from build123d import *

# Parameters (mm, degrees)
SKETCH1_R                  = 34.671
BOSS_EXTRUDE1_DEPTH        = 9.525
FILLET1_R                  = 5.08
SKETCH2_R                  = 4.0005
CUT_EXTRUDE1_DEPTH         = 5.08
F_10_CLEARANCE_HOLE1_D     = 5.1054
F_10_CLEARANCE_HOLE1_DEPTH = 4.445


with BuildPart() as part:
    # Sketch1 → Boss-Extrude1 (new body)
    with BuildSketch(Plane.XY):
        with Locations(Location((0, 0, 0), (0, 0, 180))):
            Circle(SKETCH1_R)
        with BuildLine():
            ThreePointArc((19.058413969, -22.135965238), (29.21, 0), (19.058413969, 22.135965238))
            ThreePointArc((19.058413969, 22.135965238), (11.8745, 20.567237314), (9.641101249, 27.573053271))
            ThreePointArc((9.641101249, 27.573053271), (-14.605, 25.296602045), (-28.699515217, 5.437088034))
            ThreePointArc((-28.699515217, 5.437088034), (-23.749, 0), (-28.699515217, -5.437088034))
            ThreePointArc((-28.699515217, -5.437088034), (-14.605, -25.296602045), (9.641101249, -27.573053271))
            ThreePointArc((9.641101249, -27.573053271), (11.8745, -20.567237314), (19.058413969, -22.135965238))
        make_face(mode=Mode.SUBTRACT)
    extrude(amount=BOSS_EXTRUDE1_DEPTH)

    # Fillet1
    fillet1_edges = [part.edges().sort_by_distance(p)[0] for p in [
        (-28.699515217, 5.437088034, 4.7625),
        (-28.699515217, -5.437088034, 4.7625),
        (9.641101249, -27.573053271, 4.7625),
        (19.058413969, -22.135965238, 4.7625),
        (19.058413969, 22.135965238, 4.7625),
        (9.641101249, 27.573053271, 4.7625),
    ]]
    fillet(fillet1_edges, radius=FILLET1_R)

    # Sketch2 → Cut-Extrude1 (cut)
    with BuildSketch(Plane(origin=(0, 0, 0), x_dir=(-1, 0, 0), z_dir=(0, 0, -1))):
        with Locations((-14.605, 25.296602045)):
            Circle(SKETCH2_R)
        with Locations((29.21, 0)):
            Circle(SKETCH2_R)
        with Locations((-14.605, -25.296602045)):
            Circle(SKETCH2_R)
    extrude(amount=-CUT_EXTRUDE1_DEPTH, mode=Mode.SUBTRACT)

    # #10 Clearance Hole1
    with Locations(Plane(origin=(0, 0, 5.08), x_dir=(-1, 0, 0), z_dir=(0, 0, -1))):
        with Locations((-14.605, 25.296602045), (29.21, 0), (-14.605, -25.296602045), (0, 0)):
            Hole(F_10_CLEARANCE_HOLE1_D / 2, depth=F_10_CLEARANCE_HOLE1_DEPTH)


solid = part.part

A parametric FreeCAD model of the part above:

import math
import FreeCAD as App
import Part
import Sketcher
from FreeCAD import Vector
Q = App.Units.Quantity


def edges_at(feature, points):
    """Names of the edges that pass closest to the given points."""
    edges = feature.Shape.Edges
    near = lambda p: min(range(len(edges)), key=lambda i: edges[i].distToShape(Part.Vertex(*p))[0])
    return sorted({f"Edge{near(p) + 1}" for p in points})

doc = App.newDocument("Part")
body = doc.addObject("PartDesign::Body", "Body")

# Sketch on XY plane
sketch1 = body.newObject("Sketcher::SketchObject", "Sketch")
sketch1.AttachmentSupport = (doc.getObject("XY_Plane"), [""])
sketch1.MapMode = "FlatFace"
sketch1.addGeometry([
    Part.Circle(Vector(0, 0, 0), Vector(0, 0, 1), 34.671),  # 0
    Part.ArcOfCircle(Part.Circle(Vector(0, 0, 0), Vector(0, 0, 1), 29.21), math.radians(-49.272518), math.radians(49.272518)),  # 1
    Part.ArcOfCircle(Part.Circle(Vector(14.605, -25.296602, 0), Vector(0, 0, 1), 5.461), math.radians(35.363741), math.radians(204.636259)),  # 2
    Part.ArcOfCircle(Part.Circle(Vector(0, 0, 0), Vector(0, 0, 1), 29.21), math.radians(-169.272518), math.radians(-70.727482)),  # 3
    Part.ArcOfCircle(Part.Circle(Vector(-29.21, 0, 0), Vector(0, 0, 1), 5.461), math.radians(-84.636259), math.radians(84.636259)),  # 4
    Part.ArcOfCircle(Part.Circle(Vector(0, 0, 0), Vector(0, 0, 1), 29.21), math.radians(70.727482), math.radians(169.272518)),  # 5
    Part.ArcOfCircle(Part.Circle(Vector(14.605, 25.296602, 0), Vector(0, 0, 1), 5.461), math.radians(155.363741), math.radians(324.636259)),  # 6
], False)
sketch1.addConstraint([
    Sketcher.Constraint("Coincident", 1, 1, 2, 1),
    Sketcher.Constraint("Coincident", 2, 2, 3, 2),
    Sketcher.Constraint("Coincident", 3, 1, 4, 1),
    Sketcher.Constraint("Coincident", 4, 2, 5, 2),
    Sketcher.Constraint("Coincident", 5, 1, 6, 1),
    Sketcher.Constraint("Coincident", 6, 2, 1, 2),
    Sketcher.Constraint("Coincident", 0, 3, -1, 1),
    Sketcher.Constraint("Coincident", 1, 3, -1, 1),
    Sketcher.Constraint("Coincident", 3, 3, -1, 1),
    Sketcher.Constraint("Coincident", 5, 3, -1, 1),
    Sketcher.Constraint("Equal", 1, 3),
    Sketcher.Constraint("Equal", 2, 4),
    Sketcher.Constraint("Equal", 3, 5),
    Sketcher.Constraint("Equal", 4, 6),
    Sketcher.Constraint("Symmetric", 2, 3, 6, 3, -1),
    Sketcher.Constraint("PointOnObject", 4, 3, -1),
    Sketcher.Constraint("Diameter", 0, Q("2.73 in")),
    Sketcher.Constraint("Radius", 1, Q("1.15 in")),
    Sketcher.Constraint("Radius", 2, Q("0.215 in")),
    Sketcher.Constraint("DistanceX", 4, 3, -1, 1, Q("1.15 in")),
    Sketcher.Constraint("DistanceX", -1, 1, 2, 3, Q("0.575 in")),
    Sketcher.Constraint("DistanceX", -1, 1, 2, 2, 9.641101),
])
pad1 = body.newObject("PartDesign::Pad", "Pad")
pad1.Profile = sketch1
pad1.Length = Q("0.375 in")
doc.recompute()

fillet = body.newObject("PartDesign::Fillet", "Fillet")
fillet.Base = (pad1, edges_at(pad1, [
    (-28.7, 5.437, 4.763),
    (-28.7, -5.437, 4.763),
    (9.641, -27.573, 4.763),
    (19.058, -22.136, 4.763),
    (19.058, 22.136, 4.763),
    (9.641, 27.573, 4.763),
]))
fillet.Radius = Q("0.2 in")

# Sketch on XY plane
sketch2 = body.newObject("Sketcher::SketchObject", "Sketch001")
sketch2.AttachmentSupport = (doc.getObject("XY_Plane"), [""])
sketch2.MapMode = "FlatFace"
sketch2.addGeometry([
    Part.Circle(Vector(14.605, 25.296602, 0), Vector(0, 0, 1), 4.0005),
    Part.Circle(Vector(-29.21, 0, 0), Vector(0, 0, 1), 4.0005),
    Part.Circle(Vector(14.605, -25.296602, 0), Vector(0, 0, 1), 4.0005),
], False)
sketch2.addConstraint([
    Sketcher.Constraint("Equal", 0, 1),
    Sketcher.Constraint("Equal", 1, 2),
    Sketcher.Constraint("Symmetric", 0, 3, 2, 3, -1),
    Sketcher.Constraint("PointOnObject", 1, 3, -1),
    Sketcher.Constraint("Diameter", 0, Q("0.315 in")),
    Sketcher.Constraint("DistanceX", 1, 3, -1, 1, Q("1.15 in")),
    Sketcher.Constraint("DistanceX", -1, 1, 0, 3, Q("0.575 in")),
    Sketcher.Constraint("DistanceY", -1, 1, 0, 3, 25.296602),
])
pocket1 = body.newObject("PartDesign::Pocket", "Pocket")
pocket1.Profile = sketch2
pocket1.Length = Q("0.2 in")
pocket1.Reversed = True

# Sketch on XY plane
sketch3 = body.newObject("Sketcher::SketchObject", "Sketch002")
sketch3.AttachmentSupport = (doc.getObject("XY_Plane"), [""])
sketch3.MapMode = "FlatFace"
sketch3.AttachmentOffset = App.Placement(Vector(0, 0, 0.2 * 25.4), App.Rotation())
sketch3.addGeometry([
    Part.Circle(Vector(14.605, 25.296602, 0), Vector(0, 0, 1), 2.5527),
    Part.Circle(Vector(-29.21, 0, 0), Vector(0, 0, 1), 2.5527),
    Part.Circle(Vector(14.605, -25.296602, 0), Vector(0, 0, 1), 2.5527),
    Part.Circle(Vector(0, 0, 0), Vector(0, 0, 1), 2.5527),
], False)
sketch3.addConstraint([
    Sketcher.Constraint("Coincident", 3, 3, -1, 1),
    Sketcher.Constraint("Equal", 0, 1),
    Sketcher.Constraint("Equal", 1, 2),
    Sketcher.Constraint("Equal", 2, 3),
    Sketcher.Constraint("Symmetric", 0, 3, 2, 3, -1),
    Sketcher.Constraint("PointOnObject", 1, 3, -1),
    Sketcher.Constraint("Diameter", 0, Q("0.201 in")),
    Sketcher.Constraint("DistanceX", 1, 3, -1, 1, Q("1.15 in")),
    Sketcher.Constraint("DistanceX", -1, 1, 0, 3, Q("0.575 in")),
    Sketcher.Constraint("DistanceY", -1, 1, 0, 3, 25.296602),
])
doc.recompute()
hole = body.newObject("PartDesign::Hole", "Hole")
hole.Profile = sketch3
hole.ThreadType = "None"
hole.Diameter = Q("0.201 in")
hole.DepthType = "Dimension"
hole.Depth = Q("0.175 in")
hole.DrillPoint = "Flat"
hole.Reversed = True

doc.recompute()
